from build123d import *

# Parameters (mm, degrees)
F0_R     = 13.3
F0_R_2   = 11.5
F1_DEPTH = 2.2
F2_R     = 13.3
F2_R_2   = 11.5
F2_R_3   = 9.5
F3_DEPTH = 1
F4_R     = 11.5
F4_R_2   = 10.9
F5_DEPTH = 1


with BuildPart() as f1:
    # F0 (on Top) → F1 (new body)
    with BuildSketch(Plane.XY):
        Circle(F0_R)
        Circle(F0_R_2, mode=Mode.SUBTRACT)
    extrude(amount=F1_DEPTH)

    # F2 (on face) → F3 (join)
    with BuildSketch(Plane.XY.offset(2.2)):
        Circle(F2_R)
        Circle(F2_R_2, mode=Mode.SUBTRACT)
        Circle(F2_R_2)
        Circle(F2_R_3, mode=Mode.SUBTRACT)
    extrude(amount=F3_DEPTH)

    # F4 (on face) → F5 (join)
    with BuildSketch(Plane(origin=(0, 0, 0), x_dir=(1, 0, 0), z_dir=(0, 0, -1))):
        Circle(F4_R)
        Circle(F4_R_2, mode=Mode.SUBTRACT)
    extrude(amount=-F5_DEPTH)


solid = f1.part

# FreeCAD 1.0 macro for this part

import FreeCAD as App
import Part
import Sketcher

V = App.Vector

doc = App.newDocument("Part")
body = doc.addObject("PartDesign::Body", "Body")

# Sketch on XY plane
sketch1 = body.newObject("Sketcher::SketchObject", "Sketch")
sketch1.AttachmentSupport = (doc.getObject("XY_Plane"), [""])
sketch1.MapMode = "FlatFace"
sketch1.addGeometry([
    Part.Circle(V(0, 0, 0), V(0, 0, 1), 13.3),
    Part.Circle(V(0, 0, 0), V(0, 0, 1), 11.5),
], False)
sketch1.addConstraint([
    Sketcher.Constraint("Coincident", 0, 3, -1, 1),
    Sketcher.Constraint("Coincident", 1, 3, -1, 1),
    Sketcher.Constraint("Diameter", 1, 23.0),
    Sketcher.Constraint("Diameter", 0, 26.6),
])
pad1 = body.newObject("PartDesign::Pad", "Pad")
pad1.Profile = sketch1
pad1.Length = 2.2

# Sketch on XY plane
sketch2 = body.newObject("Sketcher::SketchObject", "Sketch001")
sketch2.AttachmentSupport = (doc.getObject("XY_Plane"), [""])
sketch2.MapMode = "FlatFace"
sketch2.AttachmentOffset = App.Placement(V(0, 0, 2.2), App.Rotation())
sketch2.addGeometry([
    Part.Circle(V(0, 0, 0), V(0, 0, 1), 13.3),
    Part.Circle(V(0, 0, 0), V(0, 0, 1), 9.5),
], False)
sketch2.addConstraint([
    Sketcher.Constraint("Coincident", 0, 3, -1, 1),
    Sketcher.Constraint("Coincident", 1, 3, -1, 1),
    Sketcher.Constraint("Diameter", 1, 19.0),
    Sketcher.Constraint("Diameter", 0, 26.6),
])
pad2 = body.newObject("PartDesign::Pad", "Pad001")
pad2.Profile = sketch2
pad2.Length = 1

# Sketch on XY plane
sketch3 = body.newObject("Sketcher::SketchObject", "Sketch002")
sketch3.AttachmentSupport = (doc.getObject("XY_Plane"), [""])
sketch3.MapMode = "FlatFace"
sketch3.addGeometry([
    Part.Circle(V(0, 0, 0), V(0, 0, 1), 11.5),
    Part.Circle(V(0, 0, 0), V(0, 0, 1), 10.9),
], False)
sketch3.addConstraint([
    Sketcher.Constraint("Coincident", 0, 3, -1, 1),
    Sketcher.Constraint("Coincident", 1, 3, -1, 1),
    Sketcher.Constraint("Diameter", 0, 23.0),
    Sketcher.Constraint("Diameter", 1, 21.8),
])
pad3 = body.newObject("PartDesign::Pad", "Pad002")
pad3.Profile = sketch3
pad3.Length = 1

doc.recompute()
